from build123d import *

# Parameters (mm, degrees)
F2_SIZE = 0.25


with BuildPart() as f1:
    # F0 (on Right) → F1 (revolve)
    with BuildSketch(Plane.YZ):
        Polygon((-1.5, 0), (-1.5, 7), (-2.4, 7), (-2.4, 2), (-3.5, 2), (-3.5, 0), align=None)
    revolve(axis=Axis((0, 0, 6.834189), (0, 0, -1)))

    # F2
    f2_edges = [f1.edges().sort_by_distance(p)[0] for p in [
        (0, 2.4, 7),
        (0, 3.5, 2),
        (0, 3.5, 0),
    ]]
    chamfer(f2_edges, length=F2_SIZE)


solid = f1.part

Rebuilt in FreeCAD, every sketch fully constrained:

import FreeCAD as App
import Part
import Sketcher
Q = App.Units.Quantity


def edges_at(feature, points):
    """Names of the edges that pass closest to the given points."""
    edges = feature.Shape.Edges
    near = lambda p: min(range(len(edges)), key=lambda i: edges[i].distToShape(Part.Vertex(*p))[0])
    return sorted({f"Edge{near(p) + 1}" for p in points})

doc = App.newDocument("Part")
body = doc.addObject("PartDesign::Body", "Body")

sketch1 = body.newObject("Sketcher::SketchObject", "Sketch")
sketch1.AttachmentSupport = (doc.getObject("YZ_Plane"), [""])
sketch1.MapMode = "FlatFace"
sketch1.addGeometry([
    Part.LineSegment(App.Vector(-1.5, 0, 0), App.Vector(-1.5, 7, 0)),
    Part.LineSegment(App.Vector(-1.5, 7, 0), App.Vector(-2.4, 7, 0)),
    Part.LineSegment(App.Vector(-2.4, 7, 0), App.Vector(-2.4, 2, 0)),
    Part.LineSegment(App.Vector(-2.4, 2, 0), App.Vector(-3.5, 2, 0)),
    Part.LineSegment(App.Vector(-3.5, 2, 0), App.Vector(-3.5, 0, 0)),
    Part.LineSegment(App.Vector(-3.5, 0, 0), App.Vector(-1.5, 0, 0)),
], False)
sketch1.addConstraint([
    Sketcher.Constraint("Coincident", 0, 2, 1, 1),
    Sketcher.Constraint("Coincident", 1, 2, 2, 1),
    Sketcher.Constraint("Coincident", 2, 2, 3, 1),
    Sketcher.Constraint("Coincident", 3, 2, 4, 1),
    Sketcher.Constraint("Coincident", 4, 2, 5, 1),
    Sketcher.Constraint("Coincident", 5, 2, 0, 1),
    Sketcher.Constraint("Vertical", 0),
    Sketcher.Constraint("Horizontal", 1),
    Sketcher.Constraint("Vertical", 2),
    Sketcher.Constraint("Horizontal", 3),
    Sketcher.Constraint("Vertical", 4),
    Sketcher.Constraint("Horizontal", 5),
    Sketcher.Constraint("PointOnObject", 4, 2, -1),
    Sketcher.Constraint("Equal", 5, 4),
    Sketcher.Constraint("DistanceX", 5, 1, 5, 2, Q("2 mm")),
    Sketcher.Constraint("DistanceY", 0, 1, 0, 2, Q("7 mm")),
    Sketcher.Constraint("DistanceX", 1, 2, 1, 1, Q("0.9 mm")),
    Sketcher.Constraint("DistanceX", 0, 2, -1, 1, Q("1.5 mm")),
])
revolution = body.newObject("PartDesign::Revolution", "Revolution")
revolution.Profile = sketch1
revolution.ReferenceAxis = (sketch1, ["V_Axis"])
revolution.Angle = 360
doc.recompute()

chamfer = body.newObject("PartDesign::Chamfer", "Chamfer")
chamfer.Base = (revolution, edges_at(revolution, [(0, 2.4, 7), (0, 3.5, 2), (0, 3.5, 0)]))
chamfer.Size = 0.25

doc.recompute()
